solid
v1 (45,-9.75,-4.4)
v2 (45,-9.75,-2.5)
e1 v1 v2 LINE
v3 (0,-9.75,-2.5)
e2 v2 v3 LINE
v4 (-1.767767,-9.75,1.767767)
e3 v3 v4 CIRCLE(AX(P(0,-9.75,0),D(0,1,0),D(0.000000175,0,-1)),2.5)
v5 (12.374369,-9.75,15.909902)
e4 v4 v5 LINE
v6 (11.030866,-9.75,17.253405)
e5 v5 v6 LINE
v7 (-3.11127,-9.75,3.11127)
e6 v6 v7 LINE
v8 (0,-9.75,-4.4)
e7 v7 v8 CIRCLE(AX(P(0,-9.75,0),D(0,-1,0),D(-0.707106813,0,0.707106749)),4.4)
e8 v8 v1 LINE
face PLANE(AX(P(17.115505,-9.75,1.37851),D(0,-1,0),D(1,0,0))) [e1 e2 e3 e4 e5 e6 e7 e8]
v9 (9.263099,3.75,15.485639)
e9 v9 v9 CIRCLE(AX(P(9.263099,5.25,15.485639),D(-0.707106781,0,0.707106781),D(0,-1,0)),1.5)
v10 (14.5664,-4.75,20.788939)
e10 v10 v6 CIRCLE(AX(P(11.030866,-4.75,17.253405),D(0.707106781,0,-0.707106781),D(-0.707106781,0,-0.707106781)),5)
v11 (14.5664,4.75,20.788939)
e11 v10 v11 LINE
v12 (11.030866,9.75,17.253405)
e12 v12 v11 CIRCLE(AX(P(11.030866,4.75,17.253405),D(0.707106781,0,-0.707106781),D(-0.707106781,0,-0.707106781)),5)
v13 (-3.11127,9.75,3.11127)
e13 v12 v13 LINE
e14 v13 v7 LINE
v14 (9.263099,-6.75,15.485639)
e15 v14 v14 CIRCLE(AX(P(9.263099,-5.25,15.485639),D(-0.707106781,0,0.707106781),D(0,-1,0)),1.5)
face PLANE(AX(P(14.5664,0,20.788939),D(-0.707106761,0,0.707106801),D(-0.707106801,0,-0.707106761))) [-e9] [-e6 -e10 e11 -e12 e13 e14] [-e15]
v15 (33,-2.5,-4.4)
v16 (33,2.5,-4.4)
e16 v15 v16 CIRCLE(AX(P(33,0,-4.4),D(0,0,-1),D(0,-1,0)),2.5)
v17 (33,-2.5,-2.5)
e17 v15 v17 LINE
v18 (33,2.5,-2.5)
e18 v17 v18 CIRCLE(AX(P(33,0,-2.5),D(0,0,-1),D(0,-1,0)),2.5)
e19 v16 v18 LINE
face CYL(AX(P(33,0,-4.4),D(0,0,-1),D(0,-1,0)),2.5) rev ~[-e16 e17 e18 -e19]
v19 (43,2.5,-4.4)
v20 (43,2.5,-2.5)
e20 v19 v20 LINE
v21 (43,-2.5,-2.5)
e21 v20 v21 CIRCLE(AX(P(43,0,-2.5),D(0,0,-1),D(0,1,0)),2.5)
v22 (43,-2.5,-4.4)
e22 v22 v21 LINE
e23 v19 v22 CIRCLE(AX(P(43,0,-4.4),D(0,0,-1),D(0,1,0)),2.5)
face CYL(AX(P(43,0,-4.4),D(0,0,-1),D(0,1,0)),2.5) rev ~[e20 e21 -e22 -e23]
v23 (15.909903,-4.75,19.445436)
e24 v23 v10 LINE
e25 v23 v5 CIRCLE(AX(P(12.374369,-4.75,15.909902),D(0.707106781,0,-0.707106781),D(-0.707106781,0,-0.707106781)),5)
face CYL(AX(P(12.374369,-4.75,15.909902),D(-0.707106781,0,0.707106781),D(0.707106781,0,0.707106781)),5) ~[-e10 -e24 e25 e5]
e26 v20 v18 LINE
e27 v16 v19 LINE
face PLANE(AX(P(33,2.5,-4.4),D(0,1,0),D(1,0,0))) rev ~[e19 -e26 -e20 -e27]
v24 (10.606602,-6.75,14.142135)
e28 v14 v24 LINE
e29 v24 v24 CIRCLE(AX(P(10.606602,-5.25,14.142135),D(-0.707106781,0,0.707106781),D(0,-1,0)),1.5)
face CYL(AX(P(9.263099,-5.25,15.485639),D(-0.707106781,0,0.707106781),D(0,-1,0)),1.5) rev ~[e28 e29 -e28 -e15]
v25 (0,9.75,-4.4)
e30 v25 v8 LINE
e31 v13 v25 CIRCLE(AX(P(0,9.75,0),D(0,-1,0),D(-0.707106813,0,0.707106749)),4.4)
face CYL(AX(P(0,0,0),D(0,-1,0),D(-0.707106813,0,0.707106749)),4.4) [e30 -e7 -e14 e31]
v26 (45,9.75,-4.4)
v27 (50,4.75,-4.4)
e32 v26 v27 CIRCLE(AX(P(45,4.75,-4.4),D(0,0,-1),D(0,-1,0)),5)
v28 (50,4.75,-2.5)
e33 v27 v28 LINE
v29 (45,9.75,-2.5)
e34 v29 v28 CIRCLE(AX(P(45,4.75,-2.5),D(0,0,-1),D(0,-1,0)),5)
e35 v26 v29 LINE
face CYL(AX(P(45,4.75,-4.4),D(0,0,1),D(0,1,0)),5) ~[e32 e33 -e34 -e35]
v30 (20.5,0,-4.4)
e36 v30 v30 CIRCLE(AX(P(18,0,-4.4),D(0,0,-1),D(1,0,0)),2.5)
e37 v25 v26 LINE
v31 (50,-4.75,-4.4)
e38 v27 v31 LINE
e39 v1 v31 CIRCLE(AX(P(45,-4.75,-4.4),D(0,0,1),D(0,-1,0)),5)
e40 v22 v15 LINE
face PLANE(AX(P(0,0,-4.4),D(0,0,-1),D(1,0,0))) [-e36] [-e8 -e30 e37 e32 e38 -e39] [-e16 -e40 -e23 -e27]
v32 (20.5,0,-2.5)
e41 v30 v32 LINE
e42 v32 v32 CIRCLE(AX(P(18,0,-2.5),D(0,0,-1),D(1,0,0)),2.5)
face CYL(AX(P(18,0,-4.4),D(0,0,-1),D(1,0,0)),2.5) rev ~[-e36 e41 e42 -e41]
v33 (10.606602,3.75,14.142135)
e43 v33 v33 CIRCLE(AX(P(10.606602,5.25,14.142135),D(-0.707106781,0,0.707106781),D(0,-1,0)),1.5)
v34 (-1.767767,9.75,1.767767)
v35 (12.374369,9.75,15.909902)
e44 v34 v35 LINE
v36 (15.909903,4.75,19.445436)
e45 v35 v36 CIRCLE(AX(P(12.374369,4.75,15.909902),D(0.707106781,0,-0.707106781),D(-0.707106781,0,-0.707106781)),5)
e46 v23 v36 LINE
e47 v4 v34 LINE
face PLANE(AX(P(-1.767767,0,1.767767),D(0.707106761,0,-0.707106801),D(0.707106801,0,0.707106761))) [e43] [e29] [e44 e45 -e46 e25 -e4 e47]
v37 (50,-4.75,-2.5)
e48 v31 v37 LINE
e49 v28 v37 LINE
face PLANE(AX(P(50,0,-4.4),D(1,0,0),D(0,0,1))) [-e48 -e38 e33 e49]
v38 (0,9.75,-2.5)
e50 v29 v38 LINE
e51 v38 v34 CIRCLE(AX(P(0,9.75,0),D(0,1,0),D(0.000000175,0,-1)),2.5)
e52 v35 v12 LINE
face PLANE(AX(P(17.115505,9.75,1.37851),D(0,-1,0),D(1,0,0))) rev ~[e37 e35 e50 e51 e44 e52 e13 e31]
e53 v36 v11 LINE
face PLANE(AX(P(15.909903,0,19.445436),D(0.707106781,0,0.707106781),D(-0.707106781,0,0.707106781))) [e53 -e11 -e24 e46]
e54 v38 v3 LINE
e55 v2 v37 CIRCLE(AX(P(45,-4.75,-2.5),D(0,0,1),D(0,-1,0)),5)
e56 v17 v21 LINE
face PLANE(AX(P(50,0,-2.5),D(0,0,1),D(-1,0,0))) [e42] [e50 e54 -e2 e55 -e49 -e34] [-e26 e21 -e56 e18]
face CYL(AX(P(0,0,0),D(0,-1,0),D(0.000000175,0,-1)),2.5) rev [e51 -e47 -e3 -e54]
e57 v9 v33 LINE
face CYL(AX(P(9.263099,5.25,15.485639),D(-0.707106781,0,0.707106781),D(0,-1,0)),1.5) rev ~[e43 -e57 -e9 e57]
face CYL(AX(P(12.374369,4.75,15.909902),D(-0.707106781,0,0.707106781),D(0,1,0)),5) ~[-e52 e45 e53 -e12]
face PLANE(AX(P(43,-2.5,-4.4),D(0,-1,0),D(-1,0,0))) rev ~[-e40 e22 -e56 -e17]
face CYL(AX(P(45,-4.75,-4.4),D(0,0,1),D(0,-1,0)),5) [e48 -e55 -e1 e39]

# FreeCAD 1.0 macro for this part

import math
import FreeCAD as App
import Part
import Sketcher

V = App.Vector
Q = App.Units.Quantity


def edges_at(feature, points):
    """Names of the edges that pass closest to the given points."""
    edges = feature.Shape.Edges
    near = lambda p: min(range(len(edges)), key=lambda i: edges[i].distToShape(Part.Vertex(*p))[0])
    return sorted({f"Edge{near(p) + 1}" for p in points})

doc = App.newDocument("Part")
body = doc.addObject("PartDesign::Body", "Body")

# Sketch on XZ plane
sketch1 = body.newObject("Sketcher::SketchObject", "Sketch")
sketch1.AttachmentSupport = (doc.getObject("XZ_Plane"), [""])
sketch1.MapMode = "FlatFace"
sketch1.addGeometry([
    Part.LineSegment(V(14.5664, 20.788939, 0), V(-3.11127, 3.11127, 0)),  # 0
    Part.ArcOfCircle(Part.Circle(V(0, 0, 0), V(0, 0, 1), 4.4), math.radians(135.000003), math.radians(269.999999)),  # 1
    Part.LineSegment(V(0, -4.4, 0), V(50, -4.4, 0)),  # 2
    Part.LineSegment(V(50, -4.4, 0), V(50, -2.5, 0)),  # 3
    Part.LineSegment(V(50, -2.5, 0), V(0, -2.5, 0)),  # 4
    Part.ArcOfCircle(Part.Circle(V(0, 0, 0), V(0, 0, 1), 2.5), math.radians(134.999991), math.radians(270.00001)),  # 5
    Part.LineSegment(V(-1.767767, 1.767767, 0), V(15.909903, 19.445436, 0)),  # 6
    Part.LineSegment(V(15.909903, 19.445436, 0), V(14.5664, 20.788939, 0)),  # 7
], False)
sketch1.addConstraint([
    Sketcher.Constraint("Tangent", 0, 2, 1, 1),
    Sketcher.Constraint("Tangent", 1, 2, 2, 1),
    Sketcher.Constraint("Coincident", 2, 2, 3, 1),
    Sketcher.Constraint("Coincident", 3, 2, 4, 1),
    Sketcher.Constraint("Tangent", 4, 2, 5, 2),
    Sketcher.Constraint("Tangent", 5, 1, 6, 1),
    Sketcher.Constraint("Coincident", 6, 2, 7, 1),
    Sketcher.Constraint("Coincident", 7, 2, 0, 1),
    Sketcher.Constraint("Horizontal", 2),
    Sketcher.Constraint("Vertical", 3),
    Sketcher.Constraint("Horizontal", 4),
    Sketcher.Constraint("Coincident", 1, 3, -1, 1),
    Sketcher.Constraint("Coincident", 5, 3, -1, 1),
    Sketcher.Constraint("Parallel", 0, 6),
    Sketcher.Constraint("Perpendicular", 6, 7),
    Sketcher.Constraint("Radius", 1, Q("4.4 mm")),
    Sketcher.Constraint("Radius", 5, Q("2.5 mm")),
    Sketcher.Constraint("DistanceX", 2, 1, 2, 2, Q("50 mm")),
    Sketcher.Constraint("Angle", 0, Q("-135.000002 deg")),
    Sketcher.Constraint("Distance", 0, Q("25 mm")),
])
pad1 = body.newObject("PartDesign::Pad", "Pad")
pad1.Profile = sketch1
pad1.Length = 19.5
pad1.Midplane = True

# Sketch on XY plane
sketch2 = body.newObject("Sketcher::SketchObject", "Sketch001")
sketch2.AttachmentSupport = (doc.getObject("XY_Plane"), [""])
sketch2.MapMode = "FlatFace"
sketch2.AttachmentOffset = App.Placement(V(0, 0, -4.4), App.Rotation())
sketch2.addGeometry([
    Part.Circle(V(18, 0, 0), V(0, 0, 1), 2.5),  # 0
    Part.LineSegment(V(43, -2.5, 0), V(33, -2.5, 0)),  # 1
    Part.ArcOfCircle(Part.Circle(V(33, 0, 0), V(0, 0, 1), 2.5), math.radians(90), math.radians(270)),  # 2
    Part.LineSegment(V(33, 2.5, 0), V(43, 2.5, 0)),  # 3
    Part.ArcOfCircle(Part.Circle(V(43, 0, 0), V(0, 0, 1), 2.5), math.radians(-90), math.radians(90)),  # 4
], False)
sketch2.addConstraint([
    Sketcher.Constraint("Tangent", 1, 2, 2, 2),
    Sketcher.Constraint("Tangent", 2, 1, 3, 1),
    Sketcher.Constraint("Tangent", 3, 2, 4, 2),
    Sketcher.Constraint("Tangent", 4, 1, 1, 1),
    Sketcher.Constraint("Horizontal", 1),
    Sketcher.Constraint("Horizontal", 3),
    Sketcher.Constraint("Equal", 0, 2),
    Sketcher.Constraint("PointOnObject", 0, 3, -1),
    Sketcher.Constraint("PointOnObject", 2, 3, -1),
    Sketcher.Constraint("Diameter", 0, Q("5 mm")),
    Sketcher.Constraint("DistanceX", 1, 2, 1, 1, Q("10 mm")),
    Sketcher.Constraint("DistanceX", -1, 1, 0, 3, Q("18 mm")),
    Sketcher.Constraint("DistanceX", -1, 1, 2, 3, Q("33 mm")),
])
pocket1 = body.newObject("PartDesign::Pocket", "Pocket")
pocket1.Profile = sketch2
pocket1.Length = 2
pocket1.Reversed = True

# Sketch on an angled plane
sketch3 = body.newObject("Sketcher::SketchObject", "Sketch002")
sketch3.Placement = App.Placement(V(-3.11127, 0, 3.11127), App.Rotation(V(0, -1, 0), V(0.707106781, 0, 0.707106781), V(-0.707106781, 0, 0.707106781), "ZXY"))
sketch3.addGeometry([
    Part.Circle(V(-5.25, 17.5, 0), V(0, 0, 1), 1.5),
    Part.Circle(V(5.25, 17.5, 0), V(0, 0, 1), 1.5),
], False)
sketch3.addConstraint([
    Sketcher.Constraint("Equal", 0, 1),
    Sketcher.Constraint("Symmetric", 0, 3, 1, 3, -2),
    Sketcher.Constraint("Diameter", 0, Q("3 mm")),
    Sketcher.Constraint("DistanceY", -1, 1, 0, 3, Q("17.5 mm")),
    Sketcher.Constraint("DistanceX", 0, 3, 1, 3, Q("10.5 mm")),
])
pocket2 = body.newObject("PartDesign::Pocket", "Pocket001")
pocket2.Profile = sketch3
pocket2.Length = 2
doc.recompute()

fillet = body.newObject("PartDesign::Fillet", "Fillet")
fillet.Base = (pocket2, edges_at(pocket2, [
    (15.238, -9.75, 20.117),
    (15.238, 9.75, 20.117),
    (50, 9.75, -3.45),
    (50, -9.75, -3.45),
]))
fillet.Radius = 5

doc.recompute()
